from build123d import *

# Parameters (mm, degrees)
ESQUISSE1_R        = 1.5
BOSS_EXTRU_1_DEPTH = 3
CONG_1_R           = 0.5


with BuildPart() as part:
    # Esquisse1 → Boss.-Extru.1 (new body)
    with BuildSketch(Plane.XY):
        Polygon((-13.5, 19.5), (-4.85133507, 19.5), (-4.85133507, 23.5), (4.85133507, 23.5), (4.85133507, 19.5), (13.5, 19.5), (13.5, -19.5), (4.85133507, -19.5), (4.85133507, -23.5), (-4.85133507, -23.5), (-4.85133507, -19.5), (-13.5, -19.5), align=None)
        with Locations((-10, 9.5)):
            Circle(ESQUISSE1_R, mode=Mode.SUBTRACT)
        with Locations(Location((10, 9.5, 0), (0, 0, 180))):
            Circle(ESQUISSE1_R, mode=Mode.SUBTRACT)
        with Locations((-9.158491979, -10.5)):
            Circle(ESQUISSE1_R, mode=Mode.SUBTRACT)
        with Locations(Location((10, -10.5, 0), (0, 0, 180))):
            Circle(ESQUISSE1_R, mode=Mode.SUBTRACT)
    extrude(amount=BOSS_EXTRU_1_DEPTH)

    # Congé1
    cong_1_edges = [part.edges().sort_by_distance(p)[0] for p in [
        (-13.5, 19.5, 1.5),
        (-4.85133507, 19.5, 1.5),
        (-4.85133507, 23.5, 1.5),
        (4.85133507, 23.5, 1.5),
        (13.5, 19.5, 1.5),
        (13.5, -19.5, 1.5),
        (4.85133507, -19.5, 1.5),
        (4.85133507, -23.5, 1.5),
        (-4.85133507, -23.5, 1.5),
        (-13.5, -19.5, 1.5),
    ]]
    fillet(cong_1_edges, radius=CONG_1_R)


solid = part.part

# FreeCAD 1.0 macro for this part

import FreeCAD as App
import Part
import Sketcher

V = App.Vector
Q = App.Units.Quantity


def edges_at(feature, points):
    """Names of the edges that pass closest to the given points."""
    edges = feature.Shape.Edges
    near = lambda p: min(range(len(edges)), key=lambda i: edges[i].distToShape(Part.Vertex(*p))[0])
    return sorted({f"Edge{near(p) + 1}" for p in points})

doc = App.newDocument("Part")
body = doc.addObject("PartDesign::Body", "Body")

sketch1 = doc.addObject("Sketcher::SketchObject", "Sketch")
body.addObject(sketch1)
sketch1.AttachmentSupport = (doc.XY_Plane, [""])
sketch1.MapMode = "FlatFace"
sketch1.addGeometry(Part.LineSegment(V(-4.9, 19.5, 0), V(-13.5, 19.5, 0)), False)
sketch1.addGeometry(Part.LineSegment(V(-13.5, 19.5, 0), V(-13.5, -19.5, 0)), False)
sketch1.addGeometry(Part.LineSegment(V(-13.5, -19.5, 0), V(-4.9, -19.5, 0)), False)
sketch1.addGeometry(Part.LineSegment(V(-4.9, -19.5, 0), V(-4.9, -23.5, 0)), False)
sketch1.addGeometry(Part.LineSegment(V(-4.9, -23.5, 0), V(4.9, -23.5, 0)), False)
sketch1.addGeometry(Part.LineSegment(V(4.9, -23.5, 0), V(4.9, -19.5, 0)), False)
sketch1.addGeometry(Part.LineSegment(V(4.9, -19.5, 0), V(13.5, -19.5, 0)), False)
sketch1.addGeometry(Part.LineSegment(V(13.5, -19.5, 0), V(13.5, 19.5, 0)), False)
sketch1.addGeometry(Part.LineSegment(V(13.5, 19.5, 0), V(4.9, 19.5, 0)), False)
sketch1.addGeometry(Part.LineSegment(V(4.9, 19.5, 0), V(4.9, 23.5, 0)), False)
sketch1.addGeometry(Part.LineSegment(V(4.9, 23.5, 0), V(-4.9, 23.5, 0)), False)
sketch1.addGeometry(Part.LineSegment(V(-4.9, 23.5, 0), V(-4.9, 19.5, 0)), False)
sketch1.addGeometry(Part.Circle(V(10, -10.5, 0), V(0, 0, 1), 1.5), False)
sketch1.addGeometry(Part.Circle(V(-9.2, -10.5, 0), V(0, 0, 1), 1.5), False)
sketch1.addGeometry(Part.Circle(V(10, 9.5, 0), V(0, 0, 1), 1.5), False)
sketch1.addGeometry(Part.Circle(V(-10, 9.5, 0), V(0, 0, 1), 1.5), False)
sketch1.addConstraint(Sketcher.Constraint("Coincident", 0, 2, 1, 1))
sketch1.addConstraint(Sketcher.Constraint("Coincident", 1, 2, 2, 1))
sketch1.addConstraint(Sketcher.Constraint("Coincident", 2, 2, 3, 1))
sketch1.addConstraint(Sketcher.Constraint("Coincident", 3, 2, 4, 1))
sketch1.addConstraint(Sketcher.Constraint("Coincident", 4, 2, 5, 1))
sketch1.addConstraint(Sketcher.Constraint("Coincident", 5, 2, 6, 1))
sketch1.addConstraint(Sketcher.Constraint("Coincident", 6, 2, 7, 1))
sketch1.addConstraint(Sketcher.Constraint("Coincident", 7, 2, 8, 1))
sketch1.addConstraint(Sketcher.Constraint("Coincident", 8, 2, 9, 1))
sketch1.addConstraint(Sketcher.Constraint("Coincident", 9, 2, 10, 1))
sketch1.addConstraint(Sketcher.Constraint("Coincident", 10, 2, 11, 1))
sketch1.addConstraint(Sketcher.Constraint("Coincident", 11, 2, 0, 1))
sketch1.addConstraint(Sketcher.Constraint("Horizontal", 0))
sketch1.addConstraint(Sketcher.Constraint("Vertical", 1))
sketch1.addConstraint(Sketcher.Constraint("Horizontal", 2))
sketch1.addConstraint(Sketcher.Constraint("Vertical", 3))
sketch1.addConstraint(Sketcher.Constraint("Horizontal", 4))
sketch1.addConstraint(Sketcher.Constraint("Vertical", 5))
sketch1.addConstraint(Sketcher.Constraint("Horizontal", 6))
sketch1.addConstraint(Sketcher.Constraint("Vertical", 7))
sketch1.addConstraint(Sketcher.Constraint("Horizontal", 8))
sketch1.addConstraint(Sketcher.Constraint("Vertical", 9))
sketch1.addConstraint(Sketcher.Constraint("Horizontal", 10))
sketch1.addConstraint(Sketcher.Constraint("Vertical", 11))
sketch1.addConstraint(Sketcher.Constraint("Equal", 12, 13))
sketch1.addConstraint(Sketcher.Constraint("Equal", 13, 14))
sketch1.addConstraint(Sketcher.Constraint("Equal", 14, 15))
sketch1.addConstraint(Sketcher.Constraint("Symmetric", 0, 2, 6, 2, -1, 1))
sketch1.addConstraint(Sketcher.Constraint("Symmetric", 2, 2, 8, 2, -1, 1))
sketch1.addConstraint(Sketcher.Constraint("Symmetric", 4, 2, 10, 2, -1, 1))
sketch1.addConstraint(Sketcher.Constraint("Symmetric", 14, 3, 15, 3, -2))
sketch1.addConstraint(Sketcher.Constraint("Symmetric", 2, 2, 5, 2, -2))
sketch1.addConstraint(Sketcher.Constraint("Horizontal", 12, 3, 13, 3))
sketch1.addConstraint(Sketcher.Constraint("Vertical", 12, 3, 14, 3))
sketch1.addConstraint(Sketcher.Constraint("Diameter", 12, Q("3 mm")))
sketch1.addConstraint(Sketcher.Constraint("DistanceY", 1, 2, 1, 1, Q("39 mm")))
sketch1.addConstraint(Sketcher.Constraint("DistanceY", 3, 2, 3, 1, Q("4 mm")))
sketch1.addConstraint(Sketcher.Constraint("DistanceX", -1, 1, 12, 3, Q("10 mm")))
sketch1.addConstraint(Sketcher.Constraint("DistanceY", 12, 3, 14, 3, Q("20 mm")))
sketch1.addConstraint(Sketcher.Constraint("DistanceY", 15, 3, 0, 2, Q("10 mm")))
sketch1.addConstraint(Sketcher.Constraint("DistanceX", 0, 2, 7, 2, Q("27 mm")))
sketch1.addConstraint(Sketcher.Constraint("DistanceX", 4, 1, 4, 2, Q("9.70267 mm")))
sketch1.addConstraint(Sketcher.Constraint("DistanceX", 13, 3, -1, 1, Q("9.158492 mm")))
pad1 = doc.addObject("PartDesign::Pad", "Pad")
body.addObject(pad1)
pad1.Profile = sketch1
pad1.Length = 3
doc.recompute()

fillet = doc.addObject("PartDesign::Fillet", "Fillet")
body.addObject(fillet)
fillet.Base = (pad1, edges_at(pad1, [
    (-13.5, 19.5, 1.5),
    (-4.851, 19.5, 1.5),
    (-4.851, 23.5, 1.5),
    (4.851, 23.5, 1.5),
    (13.5, 19.5, 1.5),
    (13.5, -19.5, 1.5),
    (4.851, -19.5, 1.5),
    (4.851, -23.5, 1.5),
    (-4.851, -23.5, 1.5),
    (-13.5, -19.5, 1.5),
]))
fillet.Radius = 0.5

doc.recompute()
